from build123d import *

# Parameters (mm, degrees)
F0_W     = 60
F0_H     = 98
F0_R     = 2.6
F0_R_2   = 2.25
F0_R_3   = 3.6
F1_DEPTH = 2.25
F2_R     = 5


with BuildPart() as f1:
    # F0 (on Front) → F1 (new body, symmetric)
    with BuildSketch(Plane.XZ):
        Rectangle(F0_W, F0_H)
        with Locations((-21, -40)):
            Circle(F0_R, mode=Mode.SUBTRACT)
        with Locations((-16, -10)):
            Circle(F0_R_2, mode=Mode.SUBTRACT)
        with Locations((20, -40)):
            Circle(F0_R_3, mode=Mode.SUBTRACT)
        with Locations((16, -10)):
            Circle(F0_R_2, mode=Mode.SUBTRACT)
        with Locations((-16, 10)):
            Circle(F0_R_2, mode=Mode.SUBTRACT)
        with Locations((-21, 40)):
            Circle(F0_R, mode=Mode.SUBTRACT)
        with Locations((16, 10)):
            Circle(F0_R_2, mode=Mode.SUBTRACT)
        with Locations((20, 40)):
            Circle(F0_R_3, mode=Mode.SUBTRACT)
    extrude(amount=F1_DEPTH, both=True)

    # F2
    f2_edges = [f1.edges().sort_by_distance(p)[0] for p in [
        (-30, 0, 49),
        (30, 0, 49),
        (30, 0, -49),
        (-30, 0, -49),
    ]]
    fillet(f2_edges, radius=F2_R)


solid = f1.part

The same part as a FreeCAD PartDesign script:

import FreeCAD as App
import Part
import Sketcher


def edges_at(feature, points):
    """Names of the edges that pass closest to the given points."""
    edges = feature.Shape.Edges
    near = lambda p: min(range(len(edges)), key=lambda i: edges[i].distToShape(Part.Vertex(*p))[0])
    return sorted({f"Edge{near(p) + 1}" for p in points})

doc = App.newDocument("Part")
params = doc.addObject("Spreadsheet::Sheet", "Params")
for row, (alias, value) in enumerate([
    ("sketch1_diameter", "5.2 mm"),
    ("sketch1_diameter2", "4.5 mm"),
    ("sketch1_diameter3", "7.2 mm"),
    ("sketch1_width", "60 mm"),
    ("sketch1_height", "98 mm"),
    ("pad1_length", "4.5 mm"),
    ("fillet_radius", "5 mm"),
], start=1):
    params.set(f"A{row}", alias)
    params.set(f"B{row}", "=" + value)
    params.setAlias(f"B{row}", alias)

body = doc.addObject("PartDesign::Body", "Body")

# Sketch on XZ plane
sketch1 = doc.addObject("Sketcher::SketchObject", "Sketch")
body.addObject(sketch1)
sketch1.AttachmentSupport = (doc.XZ_Plane, [""])
sketch1.MapMode = "FlatFace"
sketch1.addGeometry(Part.LineSegment(App.Vector(-30, 49, 0), App.Vector(-30, -49, 0)), False)
sketch1.addGeometry(Part.LineSegment(App.Vector(-30, -49, 0), App.Vector(30, -49, 0)), False)
sketch1.addGeometry(Part.LineSegment(App.Vector(30, -49, 0), App.Vector(30, 49, 0)), False)
sketch1.addGeometry(Part.LineSegment(App.Vector(30, 49, 0), App.Vector(-30, 49, 0)), False)
sketch1.addGeometry(Part.Circle(App.Vector(-21, -40, 0), App.Vector(0, 0, 1), 2.6), False)
sketch1.addGeometry(Part.Circle(App.Vector(-16, -10, 0), App.Vector(0, 0, 1), 2.2), False)
sketch1.addGeometry(Part.Circle(App.Vector(20, -40, 0), App.Vector(0, 0, 1), 3.6), False)
sketch1.addGeometry(Part.Circle(App.Vector(16, -10, 0), App.Vector(0, 0, 1), 2.2), False)
sketch1.addGeometry(Part.Circle(App.Vector(-16, 10, 0), App.Vector(0, 0, 1), 2.2), False)
sketch1.addGeometry(Part.Circle(App.Vector(-21, 40, 0), App.Vector(0, 0, 1), 2.6), False)
sketch1.addGeometry(Part.Circle(App.Vector(16, 10, 0), App.Vector(0, 0, 1), 2.2), False)
sketch1.addGeometry(Part.Circle(App.Vector(20, 40, 0), App.Vector(0, 0, 1), 3.6), False)
sketch1.addConstraint(Sketcher.Constraint("Coincident", 0, 2, 1, 1))
sketch1.addConstraint(Sketcher.Constraint("Coincident", 1, 2, 2, 1))
sketch1.addConstraint(Sketcher.Constraint("Coincident", 2, 2, 3, 1))
sketch1.addConstraint(Sketcher.Constraint("Coincident", 3, 2, 0, 1))
sketch1.addConstraint(Sketcher.Constraint("Vertical", 0))
sketch1.addConstraint(Sketcher.Constraint("Horizontal", 1))
sketch1.addConstraint(Sketcher.Constraint("Vertical", 2))
sketch1.addConstraint(Sketcher.Constraint("Horizontal", 3))
sketch1.addConstraint(Sketcher.Constraint("Equal", 5, 7))
sketch1.addConstraint(Sketcher.Constraint("Equal", 7, 8))
sketch1.addConstraint(Sketcher.Constraint("Equal", 4, 9))
sketch1.addConstraint(Sketcher.Constraint("Equal", 8, 10))
sketch1.addConstraint(Sketcher.Constraint("Equal", 6, 11))
sketch1.addConstraint(Sketcher.Constraint("Symmetric", 7, 3, 8, 3, -1, 1))
sketch1.addConstraint(Sketcher.Constraint("Symmetric", 5, 3, 10, 3, -1, 1))
sketch1.addConstraint(Sketcher.Constraint("Symmetric", 0, 2, 2, 2, -1, 1))
sketch1.addConstraint(Sketcher.Constraint("Symmetric", 5, 3, 7, 3, -2))
sketch1.addConstraint(Sketcher.Constraint("Symmetric", 4, 3, 9, 3, -1))
sketch1.addConstraint(Sketcher.Constraint("Symmetric", 6, 3, 11, 3, -1))
sketch1.addConstraint(Sketcher.Constraint("Horizontal", 4, 3, 6, 3))
sketch1.addConstraint(Sketcher.Constraint("Diameter", 4, 5.2))
sketch1.addConstraint(Sketcher.Constraint("Diameter", 5, 4.5))
sketch1.addConstraint(Sketcher.Constraint("Diameter", 6, 7.2))
sketch1.addConstraint(Sketcher.Constraint("DistanceX", 1, 1, 1, 2, 60.0))
sketch1.addConstraint(Sketcher.Constraint("DistanceY", 0, 2, 0, 1, 98.0))
sketch1.addConstraint(Sketcher.Constraint("DistanceX", 4, 3, -1, 1, 21.0))
sketch1.addConstraint(Sketcher.Constraint("DistanceY", 4, 3, -1, 1, 40.0))
sketch1.addConstraint(Sketcher.Constraint("DistanceX", 5, 3, -1, 1, 16.0))
sketch1.addConstraint(Sketcher.Constraint("DistanceY", 5, 3, -1, 1, 10.0))
sketch1.addConstraint(Sketcher.Constraint("DistanceX", -1, 1, 6, 3, 20.0))
sketch1.setExpression("Constraints[20]", "Params.sketch1_diameter")
sketch1.setExpression("Constraints[21]", "Params.sketch1_diameter2")
sketch1.setExpression("Constraints[22]", "Params.sketch1_diameter3")
sketch1.setExpression("Constraints[23]", "Params.sketch1_width")
sketch1.setExpression("Constraints[24]", "Params.sketch1_height")
pad1 = doc.addObject("PartDesign::Pad", "Pad")
body.addObject(pad1)
pad1.Profile = sketch1
pad1.setExpression("Length", "Params.pad1_length")
pad1.Midplane = True
doc.recompute()

fillet = doc.addObject("PartDesign::Fillet", "Fillet")
body.addObject(fillet)
fillet.Base = (pad1, edges_at(pad1, [
    (-30, 0, 49),
    (30, 0, 49),
    (30, 0, -49),
    (-30, 0, -49),
]))
fillet.setExpression("Radius", "Params.fillet_radius")

doc.recompute()
